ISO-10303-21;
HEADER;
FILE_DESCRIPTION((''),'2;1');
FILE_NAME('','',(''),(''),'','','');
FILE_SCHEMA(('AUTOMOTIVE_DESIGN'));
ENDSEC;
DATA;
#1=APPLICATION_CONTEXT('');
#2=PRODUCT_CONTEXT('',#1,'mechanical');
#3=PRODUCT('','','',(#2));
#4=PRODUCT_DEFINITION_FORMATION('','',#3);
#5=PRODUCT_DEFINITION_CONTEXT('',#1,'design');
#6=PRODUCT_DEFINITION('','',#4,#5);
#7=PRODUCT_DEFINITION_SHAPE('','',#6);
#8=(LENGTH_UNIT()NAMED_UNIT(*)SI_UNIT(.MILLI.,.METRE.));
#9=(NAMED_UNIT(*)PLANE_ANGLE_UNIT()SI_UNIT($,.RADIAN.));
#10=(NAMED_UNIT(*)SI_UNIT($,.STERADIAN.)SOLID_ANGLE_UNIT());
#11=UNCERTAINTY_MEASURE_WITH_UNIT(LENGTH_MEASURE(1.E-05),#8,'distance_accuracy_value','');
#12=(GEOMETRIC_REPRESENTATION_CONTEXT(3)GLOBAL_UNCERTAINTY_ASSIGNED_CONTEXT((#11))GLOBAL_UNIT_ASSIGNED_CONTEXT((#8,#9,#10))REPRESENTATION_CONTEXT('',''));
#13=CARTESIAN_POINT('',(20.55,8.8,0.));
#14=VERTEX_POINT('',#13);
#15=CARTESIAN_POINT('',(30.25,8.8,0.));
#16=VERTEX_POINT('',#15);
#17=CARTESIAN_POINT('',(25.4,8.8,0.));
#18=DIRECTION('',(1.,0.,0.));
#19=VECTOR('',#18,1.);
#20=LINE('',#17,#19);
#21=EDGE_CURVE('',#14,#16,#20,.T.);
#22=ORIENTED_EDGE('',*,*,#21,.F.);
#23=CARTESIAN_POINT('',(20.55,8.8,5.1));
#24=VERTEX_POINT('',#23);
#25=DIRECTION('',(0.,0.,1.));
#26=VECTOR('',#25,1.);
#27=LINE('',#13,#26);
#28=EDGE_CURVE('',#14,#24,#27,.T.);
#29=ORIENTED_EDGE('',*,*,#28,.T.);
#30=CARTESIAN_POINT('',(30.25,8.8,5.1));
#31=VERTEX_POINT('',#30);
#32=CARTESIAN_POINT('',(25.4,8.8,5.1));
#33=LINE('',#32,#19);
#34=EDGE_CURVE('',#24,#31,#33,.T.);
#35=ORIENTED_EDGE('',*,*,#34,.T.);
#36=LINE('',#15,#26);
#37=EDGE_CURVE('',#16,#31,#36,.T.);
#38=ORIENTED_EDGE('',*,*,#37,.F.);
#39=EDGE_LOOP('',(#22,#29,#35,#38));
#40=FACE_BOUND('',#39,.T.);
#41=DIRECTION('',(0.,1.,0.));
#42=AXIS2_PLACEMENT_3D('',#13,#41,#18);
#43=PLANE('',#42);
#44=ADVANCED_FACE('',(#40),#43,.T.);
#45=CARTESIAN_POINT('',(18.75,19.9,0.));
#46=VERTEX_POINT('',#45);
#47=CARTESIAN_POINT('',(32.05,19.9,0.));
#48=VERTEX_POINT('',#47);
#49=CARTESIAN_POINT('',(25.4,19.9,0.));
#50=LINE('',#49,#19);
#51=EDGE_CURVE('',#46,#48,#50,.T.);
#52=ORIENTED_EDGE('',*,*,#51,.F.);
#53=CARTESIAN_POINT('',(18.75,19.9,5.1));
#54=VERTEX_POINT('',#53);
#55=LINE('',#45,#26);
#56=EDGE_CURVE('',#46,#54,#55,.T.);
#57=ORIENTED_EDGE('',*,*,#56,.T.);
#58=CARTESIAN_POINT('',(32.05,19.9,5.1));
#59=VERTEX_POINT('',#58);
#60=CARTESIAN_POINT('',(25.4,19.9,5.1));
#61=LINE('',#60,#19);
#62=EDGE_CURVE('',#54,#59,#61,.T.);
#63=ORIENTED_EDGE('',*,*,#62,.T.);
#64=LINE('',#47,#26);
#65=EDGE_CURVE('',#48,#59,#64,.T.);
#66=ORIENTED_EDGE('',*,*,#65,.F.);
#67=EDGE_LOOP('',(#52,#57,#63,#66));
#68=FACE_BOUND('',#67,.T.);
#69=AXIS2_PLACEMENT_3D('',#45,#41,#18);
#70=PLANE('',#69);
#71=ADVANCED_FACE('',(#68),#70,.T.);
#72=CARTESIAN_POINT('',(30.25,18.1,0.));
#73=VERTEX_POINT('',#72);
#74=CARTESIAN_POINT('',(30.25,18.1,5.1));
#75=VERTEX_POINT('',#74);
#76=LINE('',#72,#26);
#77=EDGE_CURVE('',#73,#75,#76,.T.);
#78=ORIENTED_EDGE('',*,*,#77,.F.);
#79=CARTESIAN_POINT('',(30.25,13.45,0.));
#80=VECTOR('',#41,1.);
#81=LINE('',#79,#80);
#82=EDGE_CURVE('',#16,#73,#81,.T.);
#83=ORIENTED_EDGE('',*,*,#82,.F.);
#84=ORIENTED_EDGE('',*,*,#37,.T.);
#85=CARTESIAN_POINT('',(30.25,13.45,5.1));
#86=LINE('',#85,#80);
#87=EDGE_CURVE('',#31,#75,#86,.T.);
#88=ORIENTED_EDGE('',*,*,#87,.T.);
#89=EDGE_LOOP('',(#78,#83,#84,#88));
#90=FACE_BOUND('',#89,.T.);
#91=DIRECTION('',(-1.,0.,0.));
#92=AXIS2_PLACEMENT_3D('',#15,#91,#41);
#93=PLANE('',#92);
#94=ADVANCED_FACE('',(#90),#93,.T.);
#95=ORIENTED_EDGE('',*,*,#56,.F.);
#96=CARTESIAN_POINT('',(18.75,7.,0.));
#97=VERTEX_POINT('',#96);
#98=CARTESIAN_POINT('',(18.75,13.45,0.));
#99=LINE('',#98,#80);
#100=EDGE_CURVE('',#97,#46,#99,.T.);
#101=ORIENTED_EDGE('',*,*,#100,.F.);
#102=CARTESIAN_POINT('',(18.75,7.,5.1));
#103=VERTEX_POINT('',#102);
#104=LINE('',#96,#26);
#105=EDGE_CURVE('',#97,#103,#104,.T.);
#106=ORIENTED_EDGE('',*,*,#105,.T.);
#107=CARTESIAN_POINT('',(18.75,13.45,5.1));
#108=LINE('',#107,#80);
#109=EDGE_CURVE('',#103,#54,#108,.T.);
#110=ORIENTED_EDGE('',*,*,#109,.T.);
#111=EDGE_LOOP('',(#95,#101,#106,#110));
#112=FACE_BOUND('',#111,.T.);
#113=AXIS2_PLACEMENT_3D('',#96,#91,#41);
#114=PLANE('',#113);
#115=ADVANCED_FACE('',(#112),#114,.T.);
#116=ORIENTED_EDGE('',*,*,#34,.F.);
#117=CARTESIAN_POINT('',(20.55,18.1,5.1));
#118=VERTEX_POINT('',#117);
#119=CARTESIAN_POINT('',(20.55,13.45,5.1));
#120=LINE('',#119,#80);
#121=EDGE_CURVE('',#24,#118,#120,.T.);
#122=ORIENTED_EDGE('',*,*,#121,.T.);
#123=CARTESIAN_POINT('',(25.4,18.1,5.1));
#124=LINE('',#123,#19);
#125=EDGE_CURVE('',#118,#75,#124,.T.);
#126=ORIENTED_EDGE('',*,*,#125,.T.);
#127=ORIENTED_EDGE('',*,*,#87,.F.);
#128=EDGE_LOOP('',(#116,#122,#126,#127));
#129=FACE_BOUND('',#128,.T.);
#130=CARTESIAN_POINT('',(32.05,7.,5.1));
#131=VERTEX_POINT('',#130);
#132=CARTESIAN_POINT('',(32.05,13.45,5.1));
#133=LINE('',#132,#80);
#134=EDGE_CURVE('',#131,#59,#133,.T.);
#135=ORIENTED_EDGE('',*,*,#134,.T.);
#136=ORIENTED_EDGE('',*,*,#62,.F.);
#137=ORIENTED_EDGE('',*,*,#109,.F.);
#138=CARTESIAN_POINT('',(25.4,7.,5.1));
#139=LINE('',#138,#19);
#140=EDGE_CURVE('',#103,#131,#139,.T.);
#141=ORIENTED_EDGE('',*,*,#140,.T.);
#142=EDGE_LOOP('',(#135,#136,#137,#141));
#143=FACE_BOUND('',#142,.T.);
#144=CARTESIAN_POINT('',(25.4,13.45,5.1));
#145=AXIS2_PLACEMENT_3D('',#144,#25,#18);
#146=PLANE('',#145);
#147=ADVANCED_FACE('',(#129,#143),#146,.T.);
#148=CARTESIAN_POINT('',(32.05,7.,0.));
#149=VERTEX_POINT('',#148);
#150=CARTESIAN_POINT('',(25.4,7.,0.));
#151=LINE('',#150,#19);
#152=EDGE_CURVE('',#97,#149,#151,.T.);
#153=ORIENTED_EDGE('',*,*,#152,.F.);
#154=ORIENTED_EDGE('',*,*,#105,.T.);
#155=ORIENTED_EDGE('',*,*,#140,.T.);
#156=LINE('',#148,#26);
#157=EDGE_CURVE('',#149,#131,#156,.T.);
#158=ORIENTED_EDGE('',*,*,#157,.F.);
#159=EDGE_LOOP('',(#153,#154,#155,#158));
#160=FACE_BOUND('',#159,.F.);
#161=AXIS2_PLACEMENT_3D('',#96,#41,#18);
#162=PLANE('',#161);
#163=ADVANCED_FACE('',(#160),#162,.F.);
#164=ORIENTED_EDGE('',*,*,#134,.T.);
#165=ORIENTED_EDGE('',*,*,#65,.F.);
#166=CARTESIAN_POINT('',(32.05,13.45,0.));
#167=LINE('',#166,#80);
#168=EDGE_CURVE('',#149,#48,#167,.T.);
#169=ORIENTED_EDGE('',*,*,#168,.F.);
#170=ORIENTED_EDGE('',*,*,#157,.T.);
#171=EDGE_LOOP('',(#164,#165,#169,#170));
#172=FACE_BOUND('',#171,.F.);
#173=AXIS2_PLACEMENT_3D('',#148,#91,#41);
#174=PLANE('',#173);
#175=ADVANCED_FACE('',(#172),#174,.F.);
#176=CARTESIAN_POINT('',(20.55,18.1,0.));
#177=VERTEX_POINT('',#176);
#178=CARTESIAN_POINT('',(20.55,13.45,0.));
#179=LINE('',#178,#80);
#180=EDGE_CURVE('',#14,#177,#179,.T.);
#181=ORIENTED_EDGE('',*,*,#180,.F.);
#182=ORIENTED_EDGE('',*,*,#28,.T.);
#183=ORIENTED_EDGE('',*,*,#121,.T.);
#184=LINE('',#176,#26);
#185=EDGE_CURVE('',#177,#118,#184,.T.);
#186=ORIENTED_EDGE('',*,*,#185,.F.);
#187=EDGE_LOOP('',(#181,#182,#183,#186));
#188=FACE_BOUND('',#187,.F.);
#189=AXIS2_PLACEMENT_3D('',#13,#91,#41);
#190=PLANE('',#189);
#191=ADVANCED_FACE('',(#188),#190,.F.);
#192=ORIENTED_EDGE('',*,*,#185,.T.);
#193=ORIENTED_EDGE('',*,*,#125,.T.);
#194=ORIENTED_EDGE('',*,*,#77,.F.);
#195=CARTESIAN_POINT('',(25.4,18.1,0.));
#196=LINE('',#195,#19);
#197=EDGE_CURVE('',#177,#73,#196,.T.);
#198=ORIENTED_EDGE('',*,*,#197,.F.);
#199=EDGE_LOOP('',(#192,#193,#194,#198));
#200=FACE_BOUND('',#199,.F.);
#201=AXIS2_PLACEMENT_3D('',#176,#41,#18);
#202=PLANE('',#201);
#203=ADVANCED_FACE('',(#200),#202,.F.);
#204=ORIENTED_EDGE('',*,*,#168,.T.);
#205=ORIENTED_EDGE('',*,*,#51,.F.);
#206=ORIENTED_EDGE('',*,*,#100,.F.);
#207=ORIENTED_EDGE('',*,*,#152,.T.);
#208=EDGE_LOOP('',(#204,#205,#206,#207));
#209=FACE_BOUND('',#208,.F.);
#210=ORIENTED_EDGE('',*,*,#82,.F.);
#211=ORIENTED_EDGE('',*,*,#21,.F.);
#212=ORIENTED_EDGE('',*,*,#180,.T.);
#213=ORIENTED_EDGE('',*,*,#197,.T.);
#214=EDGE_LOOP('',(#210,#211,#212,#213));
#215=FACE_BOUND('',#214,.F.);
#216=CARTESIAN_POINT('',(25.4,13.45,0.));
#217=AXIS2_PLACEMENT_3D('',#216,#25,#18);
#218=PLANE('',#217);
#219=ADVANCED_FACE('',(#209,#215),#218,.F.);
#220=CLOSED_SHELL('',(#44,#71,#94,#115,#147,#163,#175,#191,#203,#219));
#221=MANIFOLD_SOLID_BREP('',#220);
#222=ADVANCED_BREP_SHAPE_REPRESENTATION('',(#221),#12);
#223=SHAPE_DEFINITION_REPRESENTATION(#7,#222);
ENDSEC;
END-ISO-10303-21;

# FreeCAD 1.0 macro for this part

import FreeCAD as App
import Part
import Sketcher

V = App.Vector
Q = App.Units.Quantity

doc = App.newDocument("Part")
body = doc.addObject("PartDesign::Body", "Body")

# Sketch on XY plane
sketch1 = doc.addObject("Sketcher::SketchObject", "Sketch")
body.addObject(sketch1)
sketch1.AttachmentSupport = (doc.XY_Plane, [""])
sketch1.MapMode = "FlatFace"
sketch1.addGeometry(Part.LineSegment(V(2, 11, 0), V(2, 2, 0)), False)
sketch1.addGeometry(Part.LineSegment(V(2, 2, 0), V(12, 2, 0)), False)
sketch1.addGeometry(Part.LineSegment(V(12, 2, 0), V(12, 11, 0)), False)
sketch1.addGeometry(Part.LineSegment(V(12, 11, 0), V(2, 11, 0)), False)
sketch1.addConstraint(Sketcher.Constraint("Coincident", 0, 2, 1, 1))
sketch1.addConstraint(Sketcher.Constraint("Coincident", 1, 2, 2, 1))
sketch1.addConstraint(Sketcher.Constraint("Coincident", 2, 2, 3, 1))
sketch1.addConstraint(Sketcher.Constraint("Coincident", 3, 2, 0, 1))
sketch1.addConstraint(Sketcher.Constraint("Vertical", 0))
sketch1.addConstraint(Sketcher.Constraint("Horizontal", 1))
sketch1.addConstraint(Sketcher.Constraint("Vertical", 2))
sketch1.addConstraint(Sketcher.Constraint("Horizontal", 3))
sketch1.addConstraint(Sketcher.Constraint("DistanceX", 1, 1, 1, 2, Q("9.7 mm")))
sketch1.addConstraint(Sketcher.Constraint("DistanceY", 0, 2, 0, 1, Q("9.3 mm")))
sketch1.addConstraint(Sketcher.Constraint("DistanceX", -1, 1, 0, 2, Q("1.8 mm")))
sketch1.addConstraint(Sketcher.Constraint("DistanceY", -1, 1, 0, 2, Q("1.8 mm")))
pad1 = doc.addObject("PartDesign::Pad", "Pad")
body.addObject(pad1)
pad1.Profile = sketch1
pad1.Length = 5.1
body2 = doc.addObject("PartDesign::Body", "Body001")

# Sketch on XY plane
sketch2 = doc.addObject("Sketcher::SketchObject", "Sketch001")
body2.addObject(sketch2)
sketch2.AttachmentSupport = (doc.getObject("XY_Plane001"), [""])
sketch2.MapMode = "FlatFace"
sketch2.addGeometry(Part.LineSegment(V(0, 13, 0), V(0, 0, 0)), False)
sketch2.addGeometry(Part.LineSegment(V(0, 0, 0), V(13, 0, 0)), False)
sketch2.addGeometry(Part.LineSegment(V(13, 0, 0), V(13, 13, 0)), False)
sketch2.addGeometry(Part.LineSegment(V(13, 13, 0), V(0, 13, 0)), False)
sketch2.addConstraint(Sketcher.Constraint("Coincident", 0, 2, 1, 1))
sketch2.addConstraint(Sketcher.Constraint("Coincident", 1, 2, 2, 1))
sketch2.addConstraint(Sketcher.Constraint("Coincident", 2, 2, 3, 1))
sketch2.addConstraint(Sketcher.Constraint("Coincident", 3, 2, 0, 1))
sketch2.addConstraint(Sketcher.Constraint("Vertical", 0))
sketch2.addConstraint(Sketcher.Constraint("Horizontal", 1))
sketch2.addConstraint(Sketcher.Constraint("Vertical", 2))
sketch2.addConstraint(Sketcher.Constraint("Horizontal", 3))
sketch2.addConstraint(Sketcher.Constraint("Coincident", 0, 2, -1, 1))
sketch2.addConstraint(Sketcher.Constraint("DistanceX", 1, 1, 1, 2, Q("13.3 mm")))
sketch2.addConstraint(Sketcher.Constraint("DistanceY", 0, 2, 0, 1, Q("12.9 mm")))
pad2 = doc.addObject("PartDesign::Pad", "Pad001")
body2.addObject(pad2)
pad2.Profile = sketch2
pad2.Length = 5.1
doc.recompute()

boolean = doc.addObject("PartDesign::Boolean", "Boolean")
body2.addObject(boolean)
boolean.Type = "Cut"
boolean.addObjects([body])
body3 = doc.addObject("PartDesign::Body", "Body002")
doc.recompute()

body2.Placement = App.Placement(V(18.75, 7, 0), App.Rotation(V(0, 0, 1), 0))
boolean2 = doc.addObject("PartDesign::Boolean", "Boolean001")
body3.addObject(boolean2)
boolean2.Type = "Fuse"
boolean2.addObjects([body2])

doc.recompute()
